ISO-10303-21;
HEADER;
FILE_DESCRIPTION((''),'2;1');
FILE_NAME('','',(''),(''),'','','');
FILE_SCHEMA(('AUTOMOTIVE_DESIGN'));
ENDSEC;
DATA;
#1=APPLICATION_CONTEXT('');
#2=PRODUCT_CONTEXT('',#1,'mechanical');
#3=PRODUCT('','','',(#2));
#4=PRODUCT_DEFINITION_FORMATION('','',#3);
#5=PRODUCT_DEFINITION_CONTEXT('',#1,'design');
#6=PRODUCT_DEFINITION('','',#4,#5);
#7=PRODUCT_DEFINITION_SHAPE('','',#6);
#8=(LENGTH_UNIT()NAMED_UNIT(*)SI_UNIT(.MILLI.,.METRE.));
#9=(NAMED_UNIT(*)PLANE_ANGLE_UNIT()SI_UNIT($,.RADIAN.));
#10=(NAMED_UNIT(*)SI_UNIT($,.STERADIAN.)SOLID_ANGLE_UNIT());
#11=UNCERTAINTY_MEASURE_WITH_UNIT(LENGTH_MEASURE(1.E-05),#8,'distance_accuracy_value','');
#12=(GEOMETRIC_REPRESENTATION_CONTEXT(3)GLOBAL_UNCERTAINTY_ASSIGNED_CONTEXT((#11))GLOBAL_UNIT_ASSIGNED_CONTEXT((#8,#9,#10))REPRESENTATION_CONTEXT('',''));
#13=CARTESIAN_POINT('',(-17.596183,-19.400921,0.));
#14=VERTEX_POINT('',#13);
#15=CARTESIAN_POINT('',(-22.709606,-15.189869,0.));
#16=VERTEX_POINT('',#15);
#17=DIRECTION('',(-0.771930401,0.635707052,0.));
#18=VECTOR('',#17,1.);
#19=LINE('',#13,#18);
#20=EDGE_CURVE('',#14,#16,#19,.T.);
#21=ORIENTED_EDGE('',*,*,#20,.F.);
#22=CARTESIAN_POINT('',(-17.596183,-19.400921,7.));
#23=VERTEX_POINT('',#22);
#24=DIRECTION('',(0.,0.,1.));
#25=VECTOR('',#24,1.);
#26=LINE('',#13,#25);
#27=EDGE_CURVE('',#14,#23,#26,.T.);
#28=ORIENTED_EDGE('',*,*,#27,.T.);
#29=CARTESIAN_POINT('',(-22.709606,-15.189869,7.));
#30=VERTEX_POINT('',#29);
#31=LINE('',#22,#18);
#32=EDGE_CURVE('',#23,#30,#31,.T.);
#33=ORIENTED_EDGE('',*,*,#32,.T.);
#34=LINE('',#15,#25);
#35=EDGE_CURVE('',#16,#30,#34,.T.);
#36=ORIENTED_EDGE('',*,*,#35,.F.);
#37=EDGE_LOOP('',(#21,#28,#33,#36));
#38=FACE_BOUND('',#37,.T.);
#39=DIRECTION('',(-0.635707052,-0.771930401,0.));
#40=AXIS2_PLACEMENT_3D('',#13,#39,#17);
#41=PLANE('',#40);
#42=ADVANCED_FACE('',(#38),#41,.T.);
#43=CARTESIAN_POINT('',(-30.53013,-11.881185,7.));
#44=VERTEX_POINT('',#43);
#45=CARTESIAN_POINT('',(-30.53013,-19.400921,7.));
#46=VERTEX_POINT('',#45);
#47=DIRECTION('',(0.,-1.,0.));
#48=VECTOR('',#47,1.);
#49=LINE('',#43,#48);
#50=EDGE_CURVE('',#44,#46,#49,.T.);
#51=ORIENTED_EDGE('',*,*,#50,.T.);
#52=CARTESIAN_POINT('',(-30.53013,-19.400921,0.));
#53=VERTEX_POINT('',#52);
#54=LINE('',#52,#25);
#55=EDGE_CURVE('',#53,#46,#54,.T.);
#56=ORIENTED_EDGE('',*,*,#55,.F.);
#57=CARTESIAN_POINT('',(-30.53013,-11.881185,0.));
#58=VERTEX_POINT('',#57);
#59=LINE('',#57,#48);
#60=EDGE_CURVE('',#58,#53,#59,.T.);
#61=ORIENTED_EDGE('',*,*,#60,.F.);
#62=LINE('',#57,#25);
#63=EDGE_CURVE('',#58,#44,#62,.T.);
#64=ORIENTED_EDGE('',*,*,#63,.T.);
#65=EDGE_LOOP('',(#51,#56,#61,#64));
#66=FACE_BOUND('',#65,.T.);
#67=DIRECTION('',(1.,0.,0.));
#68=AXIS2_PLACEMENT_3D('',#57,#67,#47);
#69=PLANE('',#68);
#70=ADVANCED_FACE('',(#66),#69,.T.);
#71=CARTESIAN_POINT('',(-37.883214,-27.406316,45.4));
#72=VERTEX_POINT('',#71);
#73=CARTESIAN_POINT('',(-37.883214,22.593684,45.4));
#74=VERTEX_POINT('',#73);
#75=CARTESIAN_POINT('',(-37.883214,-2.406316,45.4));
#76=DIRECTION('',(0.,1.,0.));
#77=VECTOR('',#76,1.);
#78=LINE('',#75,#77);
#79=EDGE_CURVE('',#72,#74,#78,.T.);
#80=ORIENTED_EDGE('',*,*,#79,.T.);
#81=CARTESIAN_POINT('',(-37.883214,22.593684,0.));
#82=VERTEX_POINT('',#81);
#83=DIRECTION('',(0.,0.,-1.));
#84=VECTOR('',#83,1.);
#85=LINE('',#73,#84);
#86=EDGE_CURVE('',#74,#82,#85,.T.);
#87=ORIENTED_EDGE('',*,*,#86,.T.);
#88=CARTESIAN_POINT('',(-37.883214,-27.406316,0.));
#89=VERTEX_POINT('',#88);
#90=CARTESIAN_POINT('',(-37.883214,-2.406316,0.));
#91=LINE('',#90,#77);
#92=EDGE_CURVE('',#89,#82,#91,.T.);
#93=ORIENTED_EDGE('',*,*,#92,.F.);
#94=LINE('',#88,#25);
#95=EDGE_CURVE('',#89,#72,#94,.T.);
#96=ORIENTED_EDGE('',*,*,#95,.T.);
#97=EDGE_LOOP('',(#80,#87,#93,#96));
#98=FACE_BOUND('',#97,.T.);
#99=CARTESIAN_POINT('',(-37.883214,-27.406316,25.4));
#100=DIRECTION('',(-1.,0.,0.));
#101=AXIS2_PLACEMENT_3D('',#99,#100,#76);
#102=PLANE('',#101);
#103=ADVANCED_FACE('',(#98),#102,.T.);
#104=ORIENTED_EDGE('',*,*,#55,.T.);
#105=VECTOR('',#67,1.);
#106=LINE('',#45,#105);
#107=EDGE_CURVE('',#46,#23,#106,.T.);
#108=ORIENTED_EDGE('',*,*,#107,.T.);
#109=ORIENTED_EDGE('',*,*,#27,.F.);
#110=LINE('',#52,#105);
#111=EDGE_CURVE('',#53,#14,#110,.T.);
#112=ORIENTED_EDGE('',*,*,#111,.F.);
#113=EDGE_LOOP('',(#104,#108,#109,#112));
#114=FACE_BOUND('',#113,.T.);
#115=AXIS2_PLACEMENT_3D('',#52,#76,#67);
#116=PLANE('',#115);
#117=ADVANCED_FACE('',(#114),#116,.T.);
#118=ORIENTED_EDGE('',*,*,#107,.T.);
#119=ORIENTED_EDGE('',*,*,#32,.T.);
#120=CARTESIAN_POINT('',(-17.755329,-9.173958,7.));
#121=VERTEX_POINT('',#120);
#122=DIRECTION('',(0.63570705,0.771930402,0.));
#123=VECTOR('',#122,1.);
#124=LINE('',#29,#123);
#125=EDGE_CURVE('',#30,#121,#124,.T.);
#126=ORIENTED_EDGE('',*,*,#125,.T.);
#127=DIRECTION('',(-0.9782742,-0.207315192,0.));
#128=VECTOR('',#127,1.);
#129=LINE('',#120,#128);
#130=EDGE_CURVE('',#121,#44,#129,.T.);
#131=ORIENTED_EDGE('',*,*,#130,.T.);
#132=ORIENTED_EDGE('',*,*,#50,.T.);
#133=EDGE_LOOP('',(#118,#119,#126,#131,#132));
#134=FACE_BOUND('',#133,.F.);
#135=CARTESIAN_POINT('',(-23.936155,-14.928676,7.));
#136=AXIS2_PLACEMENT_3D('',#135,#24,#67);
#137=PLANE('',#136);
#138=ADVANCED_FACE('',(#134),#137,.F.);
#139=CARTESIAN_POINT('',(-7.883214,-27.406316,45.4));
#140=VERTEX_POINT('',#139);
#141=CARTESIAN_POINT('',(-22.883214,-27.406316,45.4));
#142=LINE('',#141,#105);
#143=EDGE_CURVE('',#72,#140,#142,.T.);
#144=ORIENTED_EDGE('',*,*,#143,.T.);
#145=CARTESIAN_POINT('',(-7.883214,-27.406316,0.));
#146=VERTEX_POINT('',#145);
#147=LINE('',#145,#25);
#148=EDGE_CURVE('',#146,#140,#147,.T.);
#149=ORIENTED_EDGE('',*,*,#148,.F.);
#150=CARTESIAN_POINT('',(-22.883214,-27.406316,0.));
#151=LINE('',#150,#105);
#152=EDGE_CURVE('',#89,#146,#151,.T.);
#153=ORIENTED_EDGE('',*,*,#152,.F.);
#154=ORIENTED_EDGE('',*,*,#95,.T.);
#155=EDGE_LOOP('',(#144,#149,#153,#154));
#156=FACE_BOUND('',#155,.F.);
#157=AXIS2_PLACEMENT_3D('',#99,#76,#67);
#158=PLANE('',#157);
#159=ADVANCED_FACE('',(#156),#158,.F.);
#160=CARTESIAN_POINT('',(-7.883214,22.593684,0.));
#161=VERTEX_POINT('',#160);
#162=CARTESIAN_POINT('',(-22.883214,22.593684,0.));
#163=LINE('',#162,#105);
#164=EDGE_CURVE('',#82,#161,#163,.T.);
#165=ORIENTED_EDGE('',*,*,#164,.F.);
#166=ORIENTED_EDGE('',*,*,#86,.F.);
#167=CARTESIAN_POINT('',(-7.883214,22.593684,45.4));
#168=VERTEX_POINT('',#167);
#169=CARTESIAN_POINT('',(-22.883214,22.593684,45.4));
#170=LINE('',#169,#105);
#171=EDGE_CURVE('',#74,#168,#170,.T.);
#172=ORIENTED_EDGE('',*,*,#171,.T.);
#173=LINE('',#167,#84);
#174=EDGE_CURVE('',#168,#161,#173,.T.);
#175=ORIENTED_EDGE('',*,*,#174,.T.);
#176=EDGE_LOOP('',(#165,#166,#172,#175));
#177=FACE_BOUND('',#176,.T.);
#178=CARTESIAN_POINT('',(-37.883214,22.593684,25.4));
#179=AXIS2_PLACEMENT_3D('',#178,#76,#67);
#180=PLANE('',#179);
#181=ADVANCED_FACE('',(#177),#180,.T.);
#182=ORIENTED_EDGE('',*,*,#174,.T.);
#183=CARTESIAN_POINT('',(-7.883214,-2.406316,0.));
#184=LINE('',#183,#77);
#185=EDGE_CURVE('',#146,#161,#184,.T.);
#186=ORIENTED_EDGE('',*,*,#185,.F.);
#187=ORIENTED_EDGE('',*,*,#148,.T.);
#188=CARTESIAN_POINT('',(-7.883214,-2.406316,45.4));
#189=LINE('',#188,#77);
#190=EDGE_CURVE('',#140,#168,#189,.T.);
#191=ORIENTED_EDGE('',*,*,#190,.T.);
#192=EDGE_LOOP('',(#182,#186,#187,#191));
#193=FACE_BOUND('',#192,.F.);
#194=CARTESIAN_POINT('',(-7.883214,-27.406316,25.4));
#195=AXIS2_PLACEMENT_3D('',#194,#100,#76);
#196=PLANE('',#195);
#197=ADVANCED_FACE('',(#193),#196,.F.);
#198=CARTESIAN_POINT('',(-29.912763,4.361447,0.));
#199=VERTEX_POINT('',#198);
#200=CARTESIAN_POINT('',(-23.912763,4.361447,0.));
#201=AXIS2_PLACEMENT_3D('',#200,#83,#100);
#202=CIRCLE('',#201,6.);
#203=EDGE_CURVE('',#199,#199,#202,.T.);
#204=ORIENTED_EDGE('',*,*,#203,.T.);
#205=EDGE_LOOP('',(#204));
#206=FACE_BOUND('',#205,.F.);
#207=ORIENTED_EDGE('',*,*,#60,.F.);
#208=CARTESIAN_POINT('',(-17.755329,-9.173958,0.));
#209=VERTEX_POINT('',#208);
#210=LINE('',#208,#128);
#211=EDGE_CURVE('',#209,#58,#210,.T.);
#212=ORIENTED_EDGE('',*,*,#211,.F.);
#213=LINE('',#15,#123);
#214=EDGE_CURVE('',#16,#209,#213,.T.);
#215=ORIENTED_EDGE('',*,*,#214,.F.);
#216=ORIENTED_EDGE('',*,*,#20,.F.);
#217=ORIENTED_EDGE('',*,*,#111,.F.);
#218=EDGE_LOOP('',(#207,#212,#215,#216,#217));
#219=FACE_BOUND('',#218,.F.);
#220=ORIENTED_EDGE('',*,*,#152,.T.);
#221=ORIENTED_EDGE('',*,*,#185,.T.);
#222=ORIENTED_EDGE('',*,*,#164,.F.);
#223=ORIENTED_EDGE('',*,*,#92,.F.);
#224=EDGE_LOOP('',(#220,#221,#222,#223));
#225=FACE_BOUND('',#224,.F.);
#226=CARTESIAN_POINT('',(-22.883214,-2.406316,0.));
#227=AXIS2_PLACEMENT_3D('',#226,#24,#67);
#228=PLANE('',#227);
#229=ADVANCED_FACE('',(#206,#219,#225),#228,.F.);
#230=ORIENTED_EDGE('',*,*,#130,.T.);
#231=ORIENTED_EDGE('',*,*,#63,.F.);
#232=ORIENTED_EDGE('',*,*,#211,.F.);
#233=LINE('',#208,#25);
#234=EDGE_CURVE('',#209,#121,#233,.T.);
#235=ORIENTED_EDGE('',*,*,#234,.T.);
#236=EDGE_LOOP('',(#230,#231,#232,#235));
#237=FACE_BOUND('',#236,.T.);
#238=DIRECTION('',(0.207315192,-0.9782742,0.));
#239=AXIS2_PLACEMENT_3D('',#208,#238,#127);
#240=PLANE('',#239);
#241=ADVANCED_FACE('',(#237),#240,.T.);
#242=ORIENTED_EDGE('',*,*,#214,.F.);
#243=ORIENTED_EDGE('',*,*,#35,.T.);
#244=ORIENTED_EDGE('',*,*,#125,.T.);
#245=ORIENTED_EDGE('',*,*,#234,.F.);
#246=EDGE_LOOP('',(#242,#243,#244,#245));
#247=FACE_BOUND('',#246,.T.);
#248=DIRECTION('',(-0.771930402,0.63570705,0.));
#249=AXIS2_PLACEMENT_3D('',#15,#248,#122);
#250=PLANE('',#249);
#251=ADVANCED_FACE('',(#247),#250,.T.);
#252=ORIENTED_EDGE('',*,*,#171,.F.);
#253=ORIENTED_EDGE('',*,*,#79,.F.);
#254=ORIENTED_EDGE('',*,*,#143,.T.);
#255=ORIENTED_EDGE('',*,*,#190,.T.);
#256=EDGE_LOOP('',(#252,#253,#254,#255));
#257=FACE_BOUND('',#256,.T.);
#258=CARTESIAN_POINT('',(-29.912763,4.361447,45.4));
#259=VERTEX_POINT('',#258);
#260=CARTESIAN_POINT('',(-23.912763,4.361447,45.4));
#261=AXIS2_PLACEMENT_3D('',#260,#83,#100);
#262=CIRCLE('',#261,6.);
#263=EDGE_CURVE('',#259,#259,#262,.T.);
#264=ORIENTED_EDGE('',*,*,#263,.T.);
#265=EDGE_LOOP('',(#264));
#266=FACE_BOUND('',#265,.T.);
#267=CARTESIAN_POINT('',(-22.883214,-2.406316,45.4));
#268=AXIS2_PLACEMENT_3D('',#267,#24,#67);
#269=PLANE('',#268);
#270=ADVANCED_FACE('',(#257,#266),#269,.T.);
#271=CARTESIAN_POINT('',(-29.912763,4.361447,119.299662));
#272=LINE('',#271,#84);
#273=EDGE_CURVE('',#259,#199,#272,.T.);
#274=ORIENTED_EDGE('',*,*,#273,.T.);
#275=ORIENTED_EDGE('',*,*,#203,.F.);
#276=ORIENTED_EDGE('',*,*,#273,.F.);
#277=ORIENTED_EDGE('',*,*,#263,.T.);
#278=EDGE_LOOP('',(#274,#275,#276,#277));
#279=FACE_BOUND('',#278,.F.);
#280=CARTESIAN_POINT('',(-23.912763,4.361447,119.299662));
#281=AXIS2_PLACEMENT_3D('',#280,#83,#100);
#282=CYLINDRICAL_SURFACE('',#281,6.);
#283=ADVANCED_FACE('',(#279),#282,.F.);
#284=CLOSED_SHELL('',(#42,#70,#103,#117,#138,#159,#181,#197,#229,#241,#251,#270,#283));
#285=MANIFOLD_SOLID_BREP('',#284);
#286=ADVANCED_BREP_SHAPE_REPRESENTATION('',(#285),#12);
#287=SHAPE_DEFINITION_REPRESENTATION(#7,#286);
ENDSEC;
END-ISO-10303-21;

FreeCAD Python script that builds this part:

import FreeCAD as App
import Part
import Sketcher

doc = App.newDocument("Part")
body = doc.addObject("PartDesign::Body", "Body")

# Sketch on XY plane
sketch1 = body.newObject("Sketcher::SketchObject", "Sketch")
sketch1.AttachmentSupport = (doc.getObject("XY_Plane"), [""])
sketch1.MapMode = "FlatFace"
sketch1.addGeometry(Part.LineSegment(App.Vector(-38, 23, 0), App.Vector(-38, -27, 0)), False)
sketch1.addGeometry(Part.LineSegment(App.Vector(-38, -27, 0), App.Vector(-8, -27, 0)), False)
sketch1.addGeometry(Part.LineSegment(App.Vector(-8, -27, 0), App.Vector(-8, 23, 0)), False)
sketch1.addGeometry(Part.LineSegment(App.Vector(-8, 23, 0), App.Vector(-38, 23, 0)), False)
sketch1.addConstraint(Sketcher.Constraint("Coincident", 0, 2, 1, 1))
sketch1.addConstraint(Sketcher.Constraint("Coincident", 1, 2, 2, 1))
sketch1.addConstraint(Sketcher.Constraint("Coincident", 2, 2, 3, 1))
sketch1.addConstraint(Sketcher.Constraint("Coincident", 3, 2, 0, 1))
sketch1.addConstraint(Sketcher.Constraint("Vertical", 0))
sketch1.addConstraint(Sketcher.Constraint("Horizontal", 1))
sketch1.addConstraint(Sketcher.Constraint("Vertical", 2))
sketch1.addConstraint(Sketcher.Constraint("Horizontal", 3))
sketch1.addConstraint(Sketcher.Constraint("DistanceX", 1, 1, 1, 2, 30.0))
sketch1.addConstraint(Sketcher.Constraint("DistanceY", 0, 2, 0, 1, 50.0))
sketch1.addConstraint(Sketcher.Constraint("DistanceX", 0, 2, -1, 1, 37.883214))
sketch1.addConstraint(Sketcher.Constraint("DistanceY", 0, 2, -1, 1, 27.406316))
pad1 = body.newObject("PartDesign::Pad", "Pad")
pad1.Profile = sketch1
pad1.Length = 25.4

# Sketch on XY plane
sketch2 = body.newObject("Sketcher::SketchObject", "Sketch001")
sketch2.AttachmentSupport = (doc.getObject("XY_Plane"), [""])
sketch2.MapMode = "FlatFace"
sketch2.AttachmentOffset = App.Placement(App.Vector(0, 0, 25.4), App.Rotation())
sketch2.addGeometry(Part.LineSegment(App.Vector(-38, 23, 0), App.Vector(-38, -27, 0)), False)
sketch2.addGeometry(Part.LineSegment(App.Vector(-38, -27, 0), App.Vector(-8, -27, 0)), False)
sketch2.addGeometry(Part.LineSegment(App.Vector(-8, -27, 0), App.Vector(-8, 23, 0)), False)
sketch2.addGeometry(Part.LineSegment(App.Vector(-8, 23, 0), App.Vector(-38, 23, 0)), False)
sketch2.addConstraint(Sketcher.Constraint("Coincident", 0, 2, 1, 1))
sketch2.addConstraint(Sketcher.Constraint("Coincident", 1, 2, 2, 1))
sketch2.addConstraint(Sketcher.Constraint("Coincident", 2, 2, 3, 1))
sketch2.addConstraint(Sketcher.Constraint("Coincident", 3, 2, 0, 1))
sketch2.addConstraint(Sketcher.Constraint("Vertical", 0))
sketch2.addConstraint(Sketcher.Constraint("Horizontal", 1))
sketch2.addConstraint(Sketcher.Constraint("Vertical", 2))
sketch2.addConstraint(Sketcher.Constraint("Horizontal", 3))
sketch2.addConstraint(Sketcher.Constraint("DistanceX", 1, 1, 1, 2, 30.0))
sketch2.addConstraint(Sketcher.Constraint("DistanceY", 0, 2, 0, 1, 50.0))
sketch2.addConstraint(Sketcher.Constraint("DistanceX", 0, 2, -1, 1, 37.883214))
sketch2.addConstraint(Sketcher.Constraint("DistanceY", 0, 2, -1, 1, 27.406316))
pad2 = body.newObject("PartDesign::Pad", "Pad001")
pad2.Profile = sketch2
pad2.Length = 20

# Sketch on XY plane
sketch3 = body.newObject("Sketcher::SketchObject", "Sketch002")
sketch3.AttachmentSupport = (doc.getObject("XY_Plane"), [""])
sketch3.MapMode = "FlatFace"
sketch3.AttachmentOffset = App.Placement(App.Vector(0, 0, 45.4), App.Rotation())
sketch3.addGeometry(Part.Circle(App.Vector(-24, 4, 0), App.Vector(0, 0, 1), 6), False)
sketch3.addConstraint(Sketcher.Constraint("Diameter", 0, 12.0))
sketch3.addConstraint(Sketcher.Constraint("DistanceX", 0, 3, -1, 1, 23.912763))
sketch3.addConstraint(Sketcher.Constraint("DistanceY", -1, 1, 0, 3, 4.361447))
doc.recompute()
hole = body.newObject("PartDesign::Hole", "Hole")
hole.Profile = sketch3
hole.ThreadType = "None"
hole.Diameter = 12
hole.DepthType = "ThroughAll"

# Sketch on XY plane
sketch4 = body.newObject("Sketcher::SketchObject", "Sketch003")
sketch4.AttachmentSupport = (doc.getObject("XY_Plane"), [""])
sketch4.MapMode = "FlatFace"
sketch4.addGeometry(Part.LineSegment(App.Vector(-18, -9, 0), App.Vector(-31, -12, 0)), False)
sketch4.addGeometry(Part.LineSegment(App.Vector(-31, -12, 0), App.Vector(-31, -19, 0)), False)
sketch4.addGeometry(Part.LineSegment(App.Vector(-31, -19, 0), App.Vector(-18, -19, 0)), False)
sketch4.addGeometry(Part.LineSegment(App.Vector(-18, -19, 0), App.Vector(-23, -15, 0)), False)
sketch4.addGeometry(Part.LineSegment(App.Vector(-23, -15, 0), App.Vector(-18, -9, 0)), False)
sketch4.addConstraint(Sketcher.Constraint("Coincident", 0, 2, 1, 1))
sketch4.addConstraint(Sketcher.Constraint("Coincident", 1, 2, 2, 1))
sketch4.addConstraint(Sketcher.Constraint("Coincident", 2, 2, 3, 1))
sketch4.addConstraint(Sketcher.Constraint("Coincident", 3, 2, 4, 1))
sketch4.addConstraint(Sketcher.Constraint("Coincident", 4, 2, 0, 1))
sketch4.addConstraint(Sketcher.Constraint("Vertical", 1))
sketch4.addConstraint(Sketcher.Constraint("Horizontal", 2))
sketch4.addConstraint(Sketcher.Constraint("Perpendicular", 3, 4))
sketch4.addConstraint(Sketcher.Constraint("DistanceX", 0, 2, 4, 2, 12.774801))
sketch4.addConstraint(Sketcher.Constraint("DistanceX", 2, 1, 2, 2, 12.933947))
sketch4.addConstraint(Sketcher.Constraint("DistanceY", 1, 2, 1, 1, 7.519736))
sketch4.addConstraint(Sketcher.Constraint("DistanceX", 0, 2, -1, 1, 30.53013))
sketch4.addConstraint(Sketcher.Constraint("DistanceY", 1, 2, -1, 1, 19.400921))
sketch4.addConstraint(Sketcher.Constraint("DistanceY", 3, 2, -1, 1, 15.189869))
sketch4.addConstraint(Sketcher.Constraint("DistanceY", 4, 2, -1, 1, 9.173958))
pocket1 = body.newObject("PartDesign::Pocket", "Pocket")
pocket1.Profile = sketch4
pocket1.Length = 7
pocket1.Reversed = True

doc.recompute()
